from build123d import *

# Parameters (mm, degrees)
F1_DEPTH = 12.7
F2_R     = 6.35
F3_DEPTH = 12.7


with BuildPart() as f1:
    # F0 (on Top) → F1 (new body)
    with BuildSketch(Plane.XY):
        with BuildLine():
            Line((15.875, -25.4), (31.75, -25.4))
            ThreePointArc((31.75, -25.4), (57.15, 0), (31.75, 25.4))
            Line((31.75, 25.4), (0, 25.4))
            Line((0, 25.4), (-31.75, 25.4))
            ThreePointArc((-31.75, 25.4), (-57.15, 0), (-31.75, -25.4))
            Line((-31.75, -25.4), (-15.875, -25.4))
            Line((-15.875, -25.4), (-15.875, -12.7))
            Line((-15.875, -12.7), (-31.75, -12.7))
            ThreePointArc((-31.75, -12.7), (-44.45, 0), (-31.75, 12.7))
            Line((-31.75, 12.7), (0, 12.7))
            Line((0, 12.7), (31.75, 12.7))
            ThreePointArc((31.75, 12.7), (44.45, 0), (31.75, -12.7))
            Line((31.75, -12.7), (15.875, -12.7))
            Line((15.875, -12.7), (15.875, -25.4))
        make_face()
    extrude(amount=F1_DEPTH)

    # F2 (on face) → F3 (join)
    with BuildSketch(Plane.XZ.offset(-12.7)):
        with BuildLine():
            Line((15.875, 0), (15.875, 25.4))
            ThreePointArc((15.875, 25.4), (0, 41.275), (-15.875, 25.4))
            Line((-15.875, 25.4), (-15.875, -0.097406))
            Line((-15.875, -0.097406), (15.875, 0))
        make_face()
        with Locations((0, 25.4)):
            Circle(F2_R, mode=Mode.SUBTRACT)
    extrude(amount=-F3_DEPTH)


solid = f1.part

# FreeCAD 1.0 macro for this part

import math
import FreeCAD as App
import Part
import Sketcher
from FreeCAD import Vector
Q = App.Units.Quantity

doc = App.newDocument("Part")
body = doc.addObject("PartDesign::Body", "Body")

# Sketch on XY plane
sketch1 = body.newObject("Sketcher::SketchObject", "Sketch")
sketch1.AttachmentSupport = (doc.getObject("XY_Plane"), [""])
sketch1.MapMode = "FlatFace"
sketch1.addGeometry([
    Part.LineSegment(Vector(16, -25, 0), Vector(32, -25, 0)),  # 0
    Part.ArcOfCircle(Part.Circle(Vector(32, 0, 0), Vector(0, 0, 1), 25), math.radians(-90), math.radians(90)),  # 1
    Part.LineSegment(Vector(32, 25, 0), Vector(-32, 25, 0)),  # 2
    Part.ArcOfCircle(Part.Circle(Vector(-32, 0, 0), Vector(0, 0, 1), 25), math.radians(90), math.radians(270)),  # 3
    Part.LineSegment(Vector(-32, -25, 0), Vector(-16, -25, 0)),  # 4
    Part.LineSegment(Vector(-16, -25, 0), Vector(-16, -13, 0)),  # 5
    Part.LineSegment(Vector(-16, -13, 0), Vector(-32, -13, 0)),  # 6
    Part.ArcOfCircle(Part.Circle(Vector(-32, 0, 0), Vector(0, 0, 1), 13), math.radians(90), math.radians(270)),  # 7
    Part.LineSegment(Vector(-32, 13, 0), Vector(32, 13, 0)),  # 8
    Part.ArcOfCircle(Part.Circle(Vector(32, 0, 0), Vector(0, 0, 1), 13), math.radians(-90), math.radians(90)),  # 9
    Part.LineSegment(Vector(32, -13, 0), Vector(16, -13, 0)),  # 10
    Part.LineSegment(Vector(16, -13, 0), Vector(16, -25, 0)),  # 11
], False)
sketch1.addConstraint([
    Sketcher.Constraint("Tangent", 0, 2, 1, 1),
    Sketcher.Constraint("Tangent", 1, 2, 2, 1),
    Sketcher.Constraint("Tangent", 2, 2, 3, 1),
    Sketcher.Constraint("Tangent", 3, 2, 4, 1),
    Sketcher.Constraint("Coincident", 4, 2, 5, 1),
    Sketcher.Constraint("Coincident", 5, 2, 6, 1),
    Sketcher.Constraint("Tangent", 6, 2, 7, 2),
    Sketcher.Constraint("Tangent", 7, 1, 8, 1),
    Sketcher.Constraint("Tangent", 8, 2, 9, 2),
    Sketcher.Constraint("Tangent", 9, 1, 10, 1),
    Sketcher.Constraint("Coincident", 10, 2, 11, 1),
    Sketcher.Constraint("Coincident", 11, 2, 0, 1),
    Sketcher.Constraint("Horizontal", 0),
    Sketcher.Constraint("Horizontal", 2),
    Sketcher.Constraint("Horizontal", 4),
    Sketcher.Constraint("Vertical", 5),
    Sketcher.Constraint("Horizontal", 6),
    Sketcher.Constraint("Horizontal", 8),
    Sketcher.Constraint("Horizontal", 10),
    Sketcher.Constraint("Vertical", 11),
    Sketcher.Constraint("Coincident", 7, 3, 3, 3),
    Sketcher.Constraint("Coincident", 9, 3, 1, 3),
    Sketcher.Constraint("Equal", 1, 3),
    Sketcher.Constraint("Symmetric", 1, 3, 3, 3, -1, 1),
    Sketcher.Constraint("Equal", 0, 4),
    Sketcher.Constraint("Radius", 1, Q("1 in")),
    Sketcher.Constraint("Radius", 7, Q("0.5 in")),
    Sketcher.Constraint("DistanceX", 2, 2, 2, 1, Q("2.5 in")),
    Sketcher.Constraint("DistanceX", 0, 1, 0, 2, Q("0.625 in")),
])
pad1 = body.newObject("PartDesign::Pad", "Pad")
pad1.Profile = sketch1
pad1.Length = Q("0.5 in")

# Sketch on XZ plane
sketch2 = body.newObject("Sketcher::SketchObject", "Sketch001")
sketch2.AttachmentSupport = (doc.getObject("XZ_Plane"), [""])
sketch2.MapMode = "FlatFace"
sketch2.AttachmentOffset = App.Placement(Vector(0, 0, -0.5 * 25.4), App.Rotation())
sketch2.addGeometry([
    Part.LineSegment(Vector(16, 0, 0), Vector(16, 25, 0)),  # 0
    Part.ArcOfCircle(Part.Circle(Vector(0, 25, 0), Vector(0, 0, 1), 16), math.radians(0), math.radians(180)),  # 1
    Part.LineSegment(Vector(-16, 25, 0), Vector(-16, 0, 0)),  # 2
    Part.LineSegment(Vector(-16, 0, 0), Vector(16, 0, 0)),  # 3
    Part.Circle(Vector(0, 25, 0), Vector(0, 0, 1), 6),  # 4
], False)
sketch2.addConstraint([
    Sketcher.Constraint("Tangent", 0, 2, 1, 1),
    Sketcher.Constraint("Tangent", 1, 2, 2, 1),
    Sketcher.Constraint("Coincident", 2, 2, 3, 1),
    Sketcher.Constraint("Coincident", 3, 2, 0, 1),
    Sketcher.Constraint("Vertical", 0),
    Sketcher.Constraint("Vertical", 2),
    Sketcher.Constraint("Coincident", 4, 3, 1, 3),
    Sketcher.Constraint("PointOnObject", 1, 3, -2),
    Sketcher.Constraint("PointOnObject", 3, 2, -1),
    Sketcher.Constraint("Diameter", 4, Q("0.5 in")),
    Sketcher.Constraint("DistanceY", 0, 1, 0, 2, Q("1 in")),
    Sketcher.Constraint("Radius", 1, Q("0.625 in")),
    Sketcher.Constraint("DistanceY", 2, 2, 2, 1, 25.497406),
])
pad2 = body.newObject("PartDesign::Pad", "Pad001")
pad2.Profile = sketch2
pad2.Length = Q("0.5 in")
pad2.Reversed = True

doc.recompute()
